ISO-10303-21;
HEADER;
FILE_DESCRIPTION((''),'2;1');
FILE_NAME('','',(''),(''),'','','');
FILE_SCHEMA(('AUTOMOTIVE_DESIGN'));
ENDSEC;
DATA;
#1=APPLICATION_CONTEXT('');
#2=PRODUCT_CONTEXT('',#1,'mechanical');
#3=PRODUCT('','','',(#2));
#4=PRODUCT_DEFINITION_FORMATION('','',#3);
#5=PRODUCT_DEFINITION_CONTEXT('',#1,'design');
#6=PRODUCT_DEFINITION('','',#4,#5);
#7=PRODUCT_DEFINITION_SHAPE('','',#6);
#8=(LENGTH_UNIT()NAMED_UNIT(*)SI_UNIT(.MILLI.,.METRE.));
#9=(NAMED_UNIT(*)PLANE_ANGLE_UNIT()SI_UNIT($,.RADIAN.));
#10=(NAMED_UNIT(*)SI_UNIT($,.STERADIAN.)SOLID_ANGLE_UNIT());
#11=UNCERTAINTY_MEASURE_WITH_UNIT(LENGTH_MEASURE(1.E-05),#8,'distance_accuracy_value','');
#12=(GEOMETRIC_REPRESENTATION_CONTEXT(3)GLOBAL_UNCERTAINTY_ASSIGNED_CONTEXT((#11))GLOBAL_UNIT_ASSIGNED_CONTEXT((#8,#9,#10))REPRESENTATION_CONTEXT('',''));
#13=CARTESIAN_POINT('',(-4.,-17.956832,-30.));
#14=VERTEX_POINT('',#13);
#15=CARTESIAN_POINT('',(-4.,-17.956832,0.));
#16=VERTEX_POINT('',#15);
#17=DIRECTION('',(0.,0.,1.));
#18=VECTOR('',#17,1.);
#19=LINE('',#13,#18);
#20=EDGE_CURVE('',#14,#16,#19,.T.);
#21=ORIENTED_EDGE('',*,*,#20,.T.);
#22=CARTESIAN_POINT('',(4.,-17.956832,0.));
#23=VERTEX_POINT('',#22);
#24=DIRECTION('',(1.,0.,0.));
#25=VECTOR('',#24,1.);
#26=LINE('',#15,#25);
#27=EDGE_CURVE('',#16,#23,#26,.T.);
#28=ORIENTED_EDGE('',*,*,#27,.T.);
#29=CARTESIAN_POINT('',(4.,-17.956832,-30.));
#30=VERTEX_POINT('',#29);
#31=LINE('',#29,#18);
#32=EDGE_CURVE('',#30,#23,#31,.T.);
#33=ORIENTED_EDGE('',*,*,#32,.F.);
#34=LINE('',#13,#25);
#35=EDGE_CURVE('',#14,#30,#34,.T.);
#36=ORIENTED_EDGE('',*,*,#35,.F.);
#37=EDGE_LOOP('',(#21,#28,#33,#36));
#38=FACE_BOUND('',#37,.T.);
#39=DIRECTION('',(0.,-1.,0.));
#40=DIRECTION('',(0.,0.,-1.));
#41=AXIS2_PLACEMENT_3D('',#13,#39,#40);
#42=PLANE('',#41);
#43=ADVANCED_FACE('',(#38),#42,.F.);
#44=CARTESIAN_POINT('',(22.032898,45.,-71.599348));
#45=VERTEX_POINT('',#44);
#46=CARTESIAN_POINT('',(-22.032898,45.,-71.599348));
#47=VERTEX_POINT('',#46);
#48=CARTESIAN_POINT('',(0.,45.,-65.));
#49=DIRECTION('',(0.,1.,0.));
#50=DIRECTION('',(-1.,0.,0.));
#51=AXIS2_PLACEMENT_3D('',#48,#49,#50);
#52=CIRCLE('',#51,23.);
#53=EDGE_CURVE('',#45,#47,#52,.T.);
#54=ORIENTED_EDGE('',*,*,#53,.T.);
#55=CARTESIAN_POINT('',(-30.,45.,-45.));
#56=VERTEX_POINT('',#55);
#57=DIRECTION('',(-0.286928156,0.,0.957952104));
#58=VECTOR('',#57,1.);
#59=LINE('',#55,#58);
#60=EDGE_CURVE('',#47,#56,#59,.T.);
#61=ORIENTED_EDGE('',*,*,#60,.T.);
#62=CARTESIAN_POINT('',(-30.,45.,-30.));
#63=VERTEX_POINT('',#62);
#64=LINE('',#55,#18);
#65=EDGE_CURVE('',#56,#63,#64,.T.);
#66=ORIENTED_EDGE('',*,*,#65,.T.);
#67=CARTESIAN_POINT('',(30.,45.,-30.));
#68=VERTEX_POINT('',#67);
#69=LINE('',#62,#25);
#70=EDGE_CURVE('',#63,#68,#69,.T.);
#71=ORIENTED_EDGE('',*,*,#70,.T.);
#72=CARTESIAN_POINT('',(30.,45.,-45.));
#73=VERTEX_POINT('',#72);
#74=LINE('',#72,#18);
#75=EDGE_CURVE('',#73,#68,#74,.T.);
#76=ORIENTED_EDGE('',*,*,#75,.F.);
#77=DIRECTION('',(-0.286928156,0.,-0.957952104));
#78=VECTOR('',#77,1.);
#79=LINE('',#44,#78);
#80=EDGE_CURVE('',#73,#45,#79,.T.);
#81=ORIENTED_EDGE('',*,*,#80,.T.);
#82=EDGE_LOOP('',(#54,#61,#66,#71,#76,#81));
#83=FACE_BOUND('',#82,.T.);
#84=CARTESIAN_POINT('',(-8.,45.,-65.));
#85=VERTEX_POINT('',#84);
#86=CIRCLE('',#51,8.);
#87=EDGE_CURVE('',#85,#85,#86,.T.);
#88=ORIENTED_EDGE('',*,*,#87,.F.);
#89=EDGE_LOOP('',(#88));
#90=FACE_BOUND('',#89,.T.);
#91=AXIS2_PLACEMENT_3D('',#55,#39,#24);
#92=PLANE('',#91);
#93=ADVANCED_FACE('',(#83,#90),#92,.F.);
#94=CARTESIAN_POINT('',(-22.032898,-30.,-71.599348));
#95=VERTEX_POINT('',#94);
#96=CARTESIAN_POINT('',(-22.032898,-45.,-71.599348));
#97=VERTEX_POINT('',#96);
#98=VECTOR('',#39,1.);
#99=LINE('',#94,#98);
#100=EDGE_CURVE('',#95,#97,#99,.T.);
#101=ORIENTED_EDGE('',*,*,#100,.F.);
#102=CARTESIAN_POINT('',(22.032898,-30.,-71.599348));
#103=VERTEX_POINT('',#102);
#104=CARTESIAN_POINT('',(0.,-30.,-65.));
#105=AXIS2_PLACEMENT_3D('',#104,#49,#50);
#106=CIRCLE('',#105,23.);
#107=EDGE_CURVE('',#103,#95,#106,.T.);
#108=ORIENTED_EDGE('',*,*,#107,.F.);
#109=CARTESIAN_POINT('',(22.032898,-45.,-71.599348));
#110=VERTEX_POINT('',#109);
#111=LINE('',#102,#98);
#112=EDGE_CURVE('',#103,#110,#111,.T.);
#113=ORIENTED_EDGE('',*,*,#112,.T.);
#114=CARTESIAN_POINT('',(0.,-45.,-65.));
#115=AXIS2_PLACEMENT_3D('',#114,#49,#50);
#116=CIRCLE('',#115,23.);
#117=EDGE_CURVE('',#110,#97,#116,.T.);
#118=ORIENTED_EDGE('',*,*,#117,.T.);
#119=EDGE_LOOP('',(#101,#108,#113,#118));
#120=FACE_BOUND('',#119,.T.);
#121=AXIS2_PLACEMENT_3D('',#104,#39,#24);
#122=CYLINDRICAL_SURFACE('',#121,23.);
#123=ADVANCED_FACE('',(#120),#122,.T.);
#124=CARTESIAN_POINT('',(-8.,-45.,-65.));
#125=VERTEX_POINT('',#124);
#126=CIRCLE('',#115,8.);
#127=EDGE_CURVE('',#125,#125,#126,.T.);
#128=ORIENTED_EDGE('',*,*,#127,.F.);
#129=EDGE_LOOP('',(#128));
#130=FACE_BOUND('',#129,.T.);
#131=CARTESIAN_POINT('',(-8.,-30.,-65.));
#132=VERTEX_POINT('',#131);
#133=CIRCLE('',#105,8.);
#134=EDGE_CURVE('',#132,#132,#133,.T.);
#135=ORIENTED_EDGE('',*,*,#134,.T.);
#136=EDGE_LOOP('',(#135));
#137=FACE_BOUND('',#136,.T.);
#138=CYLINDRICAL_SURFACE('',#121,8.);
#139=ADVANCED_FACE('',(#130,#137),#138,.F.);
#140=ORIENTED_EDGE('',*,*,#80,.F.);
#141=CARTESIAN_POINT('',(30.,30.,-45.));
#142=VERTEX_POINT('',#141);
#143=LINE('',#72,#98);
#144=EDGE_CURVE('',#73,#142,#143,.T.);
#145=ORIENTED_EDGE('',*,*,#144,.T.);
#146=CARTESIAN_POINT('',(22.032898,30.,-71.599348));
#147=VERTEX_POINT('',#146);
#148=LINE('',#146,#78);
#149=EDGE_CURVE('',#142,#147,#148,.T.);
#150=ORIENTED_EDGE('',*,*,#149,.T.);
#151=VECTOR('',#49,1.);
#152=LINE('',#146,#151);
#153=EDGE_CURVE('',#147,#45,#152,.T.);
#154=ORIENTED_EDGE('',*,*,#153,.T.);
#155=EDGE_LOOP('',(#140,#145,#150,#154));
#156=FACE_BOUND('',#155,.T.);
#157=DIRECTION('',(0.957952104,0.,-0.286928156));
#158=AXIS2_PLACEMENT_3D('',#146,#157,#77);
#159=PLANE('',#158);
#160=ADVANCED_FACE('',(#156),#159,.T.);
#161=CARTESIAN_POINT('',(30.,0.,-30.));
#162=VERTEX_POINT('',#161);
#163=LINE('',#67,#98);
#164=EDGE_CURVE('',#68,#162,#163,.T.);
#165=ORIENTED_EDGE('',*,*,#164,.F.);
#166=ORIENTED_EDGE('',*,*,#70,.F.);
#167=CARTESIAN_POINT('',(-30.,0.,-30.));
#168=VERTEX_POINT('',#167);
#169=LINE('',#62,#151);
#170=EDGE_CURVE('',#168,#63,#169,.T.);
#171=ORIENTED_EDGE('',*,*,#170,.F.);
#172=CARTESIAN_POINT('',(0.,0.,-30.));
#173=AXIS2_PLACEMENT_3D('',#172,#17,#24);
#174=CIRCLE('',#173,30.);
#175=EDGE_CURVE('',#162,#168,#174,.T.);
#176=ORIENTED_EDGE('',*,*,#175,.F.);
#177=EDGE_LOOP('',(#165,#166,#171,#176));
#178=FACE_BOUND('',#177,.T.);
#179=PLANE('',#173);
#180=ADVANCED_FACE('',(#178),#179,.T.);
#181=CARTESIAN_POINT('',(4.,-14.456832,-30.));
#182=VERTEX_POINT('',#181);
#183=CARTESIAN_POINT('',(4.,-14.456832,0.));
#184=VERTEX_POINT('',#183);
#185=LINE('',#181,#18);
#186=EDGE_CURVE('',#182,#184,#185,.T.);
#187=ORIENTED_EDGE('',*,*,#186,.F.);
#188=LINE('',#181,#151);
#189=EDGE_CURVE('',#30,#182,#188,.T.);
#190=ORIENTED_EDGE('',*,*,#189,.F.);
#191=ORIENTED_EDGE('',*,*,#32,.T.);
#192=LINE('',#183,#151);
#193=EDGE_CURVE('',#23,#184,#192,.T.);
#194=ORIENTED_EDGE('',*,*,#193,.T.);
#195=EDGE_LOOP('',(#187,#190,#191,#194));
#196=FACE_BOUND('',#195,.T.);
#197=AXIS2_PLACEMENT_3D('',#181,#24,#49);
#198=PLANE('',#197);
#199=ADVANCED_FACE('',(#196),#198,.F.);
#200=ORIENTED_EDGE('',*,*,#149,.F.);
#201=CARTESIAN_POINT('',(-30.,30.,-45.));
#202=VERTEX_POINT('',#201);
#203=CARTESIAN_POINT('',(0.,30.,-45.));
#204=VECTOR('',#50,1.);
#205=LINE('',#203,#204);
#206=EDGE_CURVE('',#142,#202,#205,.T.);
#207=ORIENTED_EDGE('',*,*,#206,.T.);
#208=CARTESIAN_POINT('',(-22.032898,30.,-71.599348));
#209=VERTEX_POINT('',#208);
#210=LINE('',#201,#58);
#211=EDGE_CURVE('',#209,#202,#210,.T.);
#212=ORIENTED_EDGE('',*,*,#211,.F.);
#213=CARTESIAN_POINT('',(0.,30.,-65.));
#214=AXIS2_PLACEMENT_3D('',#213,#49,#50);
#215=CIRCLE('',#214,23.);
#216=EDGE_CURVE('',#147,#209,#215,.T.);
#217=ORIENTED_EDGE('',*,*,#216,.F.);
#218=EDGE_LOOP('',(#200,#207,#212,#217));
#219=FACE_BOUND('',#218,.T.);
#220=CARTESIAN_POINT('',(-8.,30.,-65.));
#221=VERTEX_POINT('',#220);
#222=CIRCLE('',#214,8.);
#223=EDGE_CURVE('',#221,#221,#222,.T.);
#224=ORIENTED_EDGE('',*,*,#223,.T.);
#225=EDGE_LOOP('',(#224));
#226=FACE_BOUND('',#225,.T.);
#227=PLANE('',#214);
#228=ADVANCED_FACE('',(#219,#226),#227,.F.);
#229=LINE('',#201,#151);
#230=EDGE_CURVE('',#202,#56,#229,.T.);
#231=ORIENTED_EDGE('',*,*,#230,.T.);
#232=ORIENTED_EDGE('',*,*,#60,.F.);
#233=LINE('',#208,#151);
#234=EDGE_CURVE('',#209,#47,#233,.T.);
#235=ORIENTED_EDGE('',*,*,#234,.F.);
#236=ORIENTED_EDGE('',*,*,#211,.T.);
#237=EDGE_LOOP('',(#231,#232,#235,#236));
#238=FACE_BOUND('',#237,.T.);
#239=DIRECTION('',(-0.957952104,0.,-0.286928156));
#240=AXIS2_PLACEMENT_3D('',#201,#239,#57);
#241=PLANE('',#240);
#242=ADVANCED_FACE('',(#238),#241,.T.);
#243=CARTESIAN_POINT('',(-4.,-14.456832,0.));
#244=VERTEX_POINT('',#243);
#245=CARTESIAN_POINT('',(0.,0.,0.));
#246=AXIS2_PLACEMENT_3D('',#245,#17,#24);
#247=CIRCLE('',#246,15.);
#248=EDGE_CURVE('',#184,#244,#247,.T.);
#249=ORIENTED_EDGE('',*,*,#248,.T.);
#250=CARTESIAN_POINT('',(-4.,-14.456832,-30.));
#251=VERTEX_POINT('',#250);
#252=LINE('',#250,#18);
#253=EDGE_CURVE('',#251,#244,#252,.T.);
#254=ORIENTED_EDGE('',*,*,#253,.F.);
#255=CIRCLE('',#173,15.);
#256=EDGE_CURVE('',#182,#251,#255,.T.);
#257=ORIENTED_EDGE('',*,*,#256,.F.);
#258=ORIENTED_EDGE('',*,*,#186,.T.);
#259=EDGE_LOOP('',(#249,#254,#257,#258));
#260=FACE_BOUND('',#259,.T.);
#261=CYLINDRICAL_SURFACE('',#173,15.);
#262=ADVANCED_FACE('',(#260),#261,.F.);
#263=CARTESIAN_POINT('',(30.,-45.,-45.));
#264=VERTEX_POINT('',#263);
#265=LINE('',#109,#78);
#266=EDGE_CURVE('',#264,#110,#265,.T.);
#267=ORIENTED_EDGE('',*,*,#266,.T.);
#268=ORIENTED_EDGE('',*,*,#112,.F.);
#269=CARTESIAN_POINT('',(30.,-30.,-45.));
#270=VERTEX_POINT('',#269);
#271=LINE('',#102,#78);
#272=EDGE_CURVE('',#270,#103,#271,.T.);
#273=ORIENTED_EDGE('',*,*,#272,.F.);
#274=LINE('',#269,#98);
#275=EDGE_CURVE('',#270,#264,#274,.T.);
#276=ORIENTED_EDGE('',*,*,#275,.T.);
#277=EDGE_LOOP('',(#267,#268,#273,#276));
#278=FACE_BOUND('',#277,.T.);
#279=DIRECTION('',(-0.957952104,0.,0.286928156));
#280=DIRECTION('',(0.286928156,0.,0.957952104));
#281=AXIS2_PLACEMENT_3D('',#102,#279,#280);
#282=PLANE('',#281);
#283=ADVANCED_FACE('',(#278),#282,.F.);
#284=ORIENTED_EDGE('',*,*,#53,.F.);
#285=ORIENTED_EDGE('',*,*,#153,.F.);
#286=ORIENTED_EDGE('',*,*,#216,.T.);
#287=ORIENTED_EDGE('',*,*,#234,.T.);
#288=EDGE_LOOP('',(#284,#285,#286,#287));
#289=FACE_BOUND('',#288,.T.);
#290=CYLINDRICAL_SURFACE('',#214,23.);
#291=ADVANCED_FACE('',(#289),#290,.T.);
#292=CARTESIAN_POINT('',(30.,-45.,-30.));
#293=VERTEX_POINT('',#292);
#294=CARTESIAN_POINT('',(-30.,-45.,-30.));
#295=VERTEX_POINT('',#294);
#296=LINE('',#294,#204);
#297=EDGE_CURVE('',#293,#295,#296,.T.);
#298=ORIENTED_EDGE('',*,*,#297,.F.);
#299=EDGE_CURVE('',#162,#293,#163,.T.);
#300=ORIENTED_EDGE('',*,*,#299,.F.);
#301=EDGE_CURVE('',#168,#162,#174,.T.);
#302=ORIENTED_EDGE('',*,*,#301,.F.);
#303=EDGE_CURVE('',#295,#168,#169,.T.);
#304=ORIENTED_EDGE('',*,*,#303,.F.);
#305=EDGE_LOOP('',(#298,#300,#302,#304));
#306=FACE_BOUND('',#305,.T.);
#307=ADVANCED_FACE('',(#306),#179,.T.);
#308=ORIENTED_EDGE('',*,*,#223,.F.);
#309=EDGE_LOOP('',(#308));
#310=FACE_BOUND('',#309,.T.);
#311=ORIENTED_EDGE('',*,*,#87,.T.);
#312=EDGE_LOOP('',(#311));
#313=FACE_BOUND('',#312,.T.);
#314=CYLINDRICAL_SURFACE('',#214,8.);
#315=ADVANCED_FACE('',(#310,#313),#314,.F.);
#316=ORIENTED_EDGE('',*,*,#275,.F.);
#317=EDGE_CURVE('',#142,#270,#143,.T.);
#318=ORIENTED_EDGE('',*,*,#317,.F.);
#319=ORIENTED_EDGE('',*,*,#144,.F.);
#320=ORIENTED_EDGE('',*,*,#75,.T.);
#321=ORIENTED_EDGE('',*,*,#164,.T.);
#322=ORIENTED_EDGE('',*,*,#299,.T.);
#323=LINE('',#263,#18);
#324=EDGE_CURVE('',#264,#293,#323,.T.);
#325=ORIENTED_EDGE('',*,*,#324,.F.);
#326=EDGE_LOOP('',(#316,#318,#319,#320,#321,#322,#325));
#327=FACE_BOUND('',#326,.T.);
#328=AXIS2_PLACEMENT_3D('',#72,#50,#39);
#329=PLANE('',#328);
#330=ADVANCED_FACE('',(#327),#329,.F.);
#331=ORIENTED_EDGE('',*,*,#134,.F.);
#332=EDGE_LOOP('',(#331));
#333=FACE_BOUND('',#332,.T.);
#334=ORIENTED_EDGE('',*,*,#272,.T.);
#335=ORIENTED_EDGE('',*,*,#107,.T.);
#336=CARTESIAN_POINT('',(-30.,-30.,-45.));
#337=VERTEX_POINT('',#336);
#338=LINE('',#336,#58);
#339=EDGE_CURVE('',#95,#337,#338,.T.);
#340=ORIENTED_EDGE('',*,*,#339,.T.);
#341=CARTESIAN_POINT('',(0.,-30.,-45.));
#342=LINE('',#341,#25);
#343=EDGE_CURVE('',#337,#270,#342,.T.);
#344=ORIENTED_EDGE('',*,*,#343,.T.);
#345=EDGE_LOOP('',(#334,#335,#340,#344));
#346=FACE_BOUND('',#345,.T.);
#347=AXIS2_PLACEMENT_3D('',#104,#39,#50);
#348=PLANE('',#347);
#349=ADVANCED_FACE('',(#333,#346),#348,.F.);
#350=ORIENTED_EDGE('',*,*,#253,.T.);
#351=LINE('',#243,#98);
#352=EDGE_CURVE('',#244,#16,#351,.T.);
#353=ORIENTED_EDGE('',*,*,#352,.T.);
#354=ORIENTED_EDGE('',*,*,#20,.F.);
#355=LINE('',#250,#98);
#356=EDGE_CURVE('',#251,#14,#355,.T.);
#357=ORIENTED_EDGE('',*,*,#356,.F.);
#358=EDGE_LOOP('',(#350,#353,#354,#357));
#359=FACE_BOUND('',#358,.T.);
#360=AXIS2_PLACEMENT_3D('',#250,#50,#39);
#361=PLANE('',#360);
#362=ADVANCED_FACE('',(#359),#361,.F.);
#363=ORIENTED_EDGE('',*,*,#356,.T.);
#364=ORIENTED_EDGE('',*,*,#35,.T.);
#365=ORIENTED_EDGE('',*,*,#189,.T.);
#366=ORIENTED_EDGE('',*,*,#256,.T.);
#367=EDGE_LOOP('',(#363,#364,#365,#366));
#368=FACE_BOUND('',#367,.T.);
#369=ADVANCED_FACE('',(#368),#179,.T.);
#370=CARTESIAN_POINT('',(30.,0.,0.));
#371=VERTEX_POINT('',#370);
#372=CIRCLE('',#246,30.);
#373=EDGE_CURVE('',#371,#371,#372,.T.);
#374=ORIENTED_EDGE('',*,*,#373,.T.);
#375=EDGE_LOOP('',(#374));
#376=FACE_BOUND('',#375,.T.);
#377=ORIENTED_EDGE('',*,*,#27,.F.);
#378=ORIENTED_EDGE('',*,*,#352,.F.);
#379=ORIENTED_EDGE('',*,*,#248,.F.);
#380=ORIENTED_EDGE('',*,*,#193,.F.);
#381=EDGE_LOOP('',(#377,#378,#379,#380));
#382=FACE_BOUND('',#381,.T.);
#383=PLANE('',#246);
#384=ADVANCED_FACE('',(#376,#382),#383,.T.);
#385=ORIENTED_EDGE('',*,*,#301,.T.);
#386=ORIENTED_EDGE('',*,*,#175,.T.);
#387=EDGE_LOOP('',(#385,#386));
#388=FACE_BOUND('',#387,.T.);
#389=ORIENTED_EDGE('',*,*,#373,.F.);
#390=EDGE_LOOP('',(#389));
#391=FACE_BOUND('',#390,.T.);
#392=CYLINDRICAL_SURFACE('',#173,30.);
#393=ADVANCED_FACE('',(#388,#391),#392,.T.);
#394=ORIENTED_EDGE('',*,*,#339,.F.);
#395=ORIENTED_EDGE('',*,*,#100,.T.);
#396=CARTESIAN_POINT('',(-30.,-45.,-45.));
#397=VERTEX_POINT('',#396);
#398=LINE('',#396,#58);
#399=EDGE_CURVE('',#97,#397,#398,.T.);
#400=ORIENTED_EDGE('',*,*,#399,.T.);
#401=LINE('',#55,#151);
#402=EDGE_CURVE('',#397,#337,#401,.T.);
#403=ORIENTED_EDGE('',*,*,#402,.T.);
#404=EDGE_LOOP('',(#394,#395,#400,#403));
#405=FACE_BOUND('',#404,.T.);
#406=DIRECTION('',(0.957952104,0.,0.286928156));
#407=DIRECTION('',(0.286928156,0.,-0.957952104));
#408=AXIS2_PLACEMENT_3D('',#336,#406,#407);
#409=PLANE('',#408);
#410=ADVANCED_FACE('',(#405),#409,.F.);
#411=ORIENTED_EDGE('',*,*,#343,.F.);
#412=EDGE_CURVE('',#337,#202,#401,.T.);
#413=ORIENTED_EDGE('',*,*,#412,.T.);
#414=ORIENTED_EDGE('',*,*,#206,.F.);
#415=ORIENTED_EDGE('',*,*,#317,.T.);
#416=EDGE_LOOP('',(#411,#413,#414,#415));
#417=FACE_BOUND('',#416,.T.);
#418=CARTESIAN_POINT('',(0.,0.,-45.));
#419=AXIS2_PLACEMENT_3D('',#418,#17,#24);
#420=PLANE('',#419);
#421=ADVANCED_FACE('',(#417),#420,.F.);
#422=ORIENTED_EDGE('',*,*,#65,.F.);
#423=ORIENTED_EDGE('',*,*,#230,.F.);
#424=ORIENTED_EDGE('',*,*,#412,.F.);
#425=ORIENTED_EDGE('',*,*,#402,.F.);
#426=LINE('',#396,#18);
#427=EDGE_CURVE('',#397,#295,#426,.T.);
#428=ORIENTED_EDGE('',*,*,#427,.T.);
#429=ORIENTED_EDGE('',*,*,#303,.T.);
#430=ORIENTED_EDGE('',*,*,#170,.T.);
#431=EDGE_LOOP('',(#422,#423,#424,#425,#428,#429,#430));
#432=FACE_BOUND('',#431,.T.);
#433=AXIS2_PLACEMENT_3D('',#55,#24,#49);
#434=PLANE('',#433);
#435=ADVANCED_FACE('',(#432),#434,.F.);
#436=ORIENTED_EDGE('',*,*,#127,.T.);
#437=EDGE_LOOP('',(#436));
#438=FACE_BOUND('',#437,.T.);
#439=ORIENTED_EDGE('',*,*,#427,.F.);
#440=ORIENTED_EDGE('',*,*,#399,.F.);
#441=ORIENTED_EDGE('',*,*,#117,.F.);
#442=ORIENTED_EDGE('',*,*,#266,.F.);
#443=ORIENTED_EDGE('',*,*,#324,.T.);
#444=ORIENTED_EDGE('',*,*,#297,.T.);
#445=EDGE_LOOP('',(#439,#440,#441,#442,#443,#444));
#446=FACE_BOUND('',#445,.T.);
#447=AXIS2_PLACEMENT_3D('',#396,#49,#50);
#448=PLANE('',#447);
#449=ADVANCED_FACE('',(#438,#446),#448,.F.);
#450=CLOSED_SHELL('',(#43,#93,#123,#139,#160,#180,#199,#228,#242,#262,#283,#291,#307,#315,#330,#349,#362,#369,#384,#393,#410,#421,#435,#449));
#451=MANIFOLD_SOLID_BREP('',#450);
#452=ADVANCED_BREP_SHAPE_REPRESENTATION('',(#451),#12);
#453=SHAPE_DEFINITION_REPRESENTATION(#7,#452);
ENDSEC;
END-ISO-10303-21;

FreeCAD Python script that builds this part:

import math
import FreeCAD as App
import Part
import Sketcher
from FreeCAD import Vector


def add_polygon(sketch, points):
    """Adds a closed chain of lines whose ends are joined by coincident constraints."""
    first, n = sketch.GeometryCount, len(points)
    for a, b in zip(points, points[1:] + points[:1]):
        sketch.addGeometry(Part.LineSegment(App.Vector(*a, 0), App.Vector(*b, 0)), False)
    for i in range(n):
        sketch.addConstraint(Sketcher.Constraint("Coincident", first + i, 2, first + (i + 1) % n, 1))

doc = App.newDocument("Part")
body = doc.addObject("PartDesign::Body", "Body")

# Sketch on XY plane
sketch1 = body.newObject("Sketcher::SketchObject", "Sketch")
sketch1.AttachmentSupport = (doc.getObject("XY_Plane"), [""])
sketch1.MapMode = "FlatFace"
sketch1.addGeometry([
    Part.Circle(Vector(0, 0, 0), Vector(0, 0, 1), 30),  # 0
    Part.LineSegment(Vector(-4, -18, 0), Vector(-4, -14.5, 0)),  # 1
    Part.ArcOfCircle(Part.Circle(Vector(0, 0, 0), Vector(0, 0, 1), 15), math.radians(-75), math.radians(255)),  # 2
    Part.LineSegment(Vector(4, -14.5, 0), Vector(4, -18, 0)),  # 3
    Part.LineSegment(Vector(4, -18, 0), Vector(-4, -18, 0)),  # 4
], False)
sketch1.addConstraint([
    Sketcher.Constraint("Coincident", 1, 2, 2, 2),
    Sketcher.Constraint("Coincident", 2, 1, 3, 1),
    Sketcher.Constraint("Coincident", 3, 2, 4, 1),
    Sketcher.Constraint("Coincident", 4, 2, 1, 1),
    Sketcher.Constraint("Vertical", 1),
    Sketcher.Constraint("Vertical", 3),
    Sketcher.Constraint("Horizontal", 4),
    Sketcher.Constraint("Coincident", 0, 3, -1, 1),
    Sketcher.Constraint("Coincident", 2, 3, -1, 1),
    Sketcher.Constraint("Horizontal", 1, 2, 2, 1),
    Sketcher.Constraint("Diameter", 0, 60.0),
    Sketcher.Constraint("Radius", 2, 15.0),
    Sketcher.Constraint("DistanceX", 4, 2, 4, 1, 8.0),
    Sketcher.Constraint("DistanceY", 1, 1, 1, 2, 3.5),
])
pad1 = body.newObject("PartDesign::Pad", "Pad")
pad1.Profile = sketch1
pad1.Length = 30
pad1.Reversed = True

# Sketch on XY plane
sketch2 = body.newObject("Sketcher::SketchObject", "Sketch001")
sketch2.AttachmentSupport = (doc.getObject("XY_Plane"), [""])
sketch2.MapMode = "FlatFace"
sketch2.AttachmentOffset = App.Placement(Vector(0, 0, -30), App.Rotation())
add_polygon(sketch2, [(30, 45), (30, -45), (-30, -45), (-30, 45)])  # lines 0-3
sketch2.addConstraint([
    Sketcher.Constraint("Vertical", 0),
    Sketcher.Constraint("Horizontal", 1),
    Sketcher.Constraint("Vertical", 2),
    Sketcher.Constraint("Horizontal", 3),
    Sketcher.Constraint("Symmetric", 0, 2, 2, 2, -1, 1),
    Sketcher.Constraint("DistanceX", 1, 2, 1, 1, 60.0),
    Sketcher.Constraint("DistanceY", 0, 2, 0, 1, 90.0),
])
pad2 = body.newObject("PartDesign::Pad", "Pad001")
pad2.Profile = sketch2
pad2.Length = 15
pad2.Reversed = True

# Sketch on XZ plane
sketch3 = body.newObject("Sketcher::SketchObject", "Sketch002")
sketch3.AttachmentSupport = (doc.getObject("XZ_Plane"), [""])
sketch3.MapMode = "FlatFace"
sketch3.AttachmentOffset = App.Placement(Vector(0, 0, -45), App.Rotation())
sketch3.addGeometry([
    Part.LineSegment(Vector(30, -45, 0), Vector(22, -72, 0)),  # 0
    Part.ArcOfCircle(Part.Circle(Vector(0, -65, 0), Vector(0, 0, 1), 23), math.radians(-163), math.radians(-17)),  # 1
    Part.LineSegment(Vector(-22, -72, 0), Vector(-30, -45, 0)),  # 2
    Part.LineSegment(Vector(-30, -45, 0), Vector(-30, -30, 0)),  # 3
    Part.LineSegment(Vector(-30, -30, 0), Vector(30, -30, 0)),  # 4
    Part.LineSegment(Vector(30, -30, 0), Vector(30, -45, 0)),  # 5
    Part.Circle(Vector(0, -65, 0), Vector(0, 0, 1), 8),  # 6
], False)
sketch3.addConstraint([
    Sketcher.Constraint("Tangent", 0, 2, 1, 2),
    Sketcher.Constraint("Tangent", 1, 1, 2, 1),
    Sketcher.Constraint("Coincident", 2, 2, 3, 1),
    Sketcher.Constraint("Coincident", 3, 2, 4, 1),
    Sketcher.Constraint("Coincident", 4, 2, 5, 1),
    Sketcher.Constraint("Coincident", 5, 2, 0, 1),
    Sketcher.Constraint("Vertical", 3),
    Sketcher.Constraint("Horizontal", 4),
    Sketcher.Constraint("Vertical", 5),
    Sketcher.Constraint("Coincident", 6, 3, 1, 3),
    Sketcher.Constraint("Symmetric", 0, 2, 1, 1, -2),
    Sketcher.Constraint("Horizontal", 2, 2, 5, 2),
    Sketcher.Constraint("Diameter", 6, 16.0),
    Sketcher.Constraint("Radius", 1, 23.0),
    Sketcher.Constraint("DistanceX", 4, 1, 4, 2, 60.0),
    Sketcher.Constraint("DistanceY", 3, 1, 3, 2, 15.0),
    Sketcher.Constraint("DistanceY", 1, 3, -1, 1, 65.0),
    Sketcher.Constraint("DistanceY", 2, 2, -1, 1, 45.0),
])
pad3 = body.newObject("PartDesign::Pad", "Pad002")
pad3.Profile = sketch3
pad3.Length = 15
doc.recompute()

mirrored = body.newObject("PartDesign::Mirrored", "Mirrored")
mirrored.Originals = [pad3]
mirrored.MirrorPlane = (doc.getObject("XZ_Plane"), [""])
body.Tip = mirrored

doc.recompute()
